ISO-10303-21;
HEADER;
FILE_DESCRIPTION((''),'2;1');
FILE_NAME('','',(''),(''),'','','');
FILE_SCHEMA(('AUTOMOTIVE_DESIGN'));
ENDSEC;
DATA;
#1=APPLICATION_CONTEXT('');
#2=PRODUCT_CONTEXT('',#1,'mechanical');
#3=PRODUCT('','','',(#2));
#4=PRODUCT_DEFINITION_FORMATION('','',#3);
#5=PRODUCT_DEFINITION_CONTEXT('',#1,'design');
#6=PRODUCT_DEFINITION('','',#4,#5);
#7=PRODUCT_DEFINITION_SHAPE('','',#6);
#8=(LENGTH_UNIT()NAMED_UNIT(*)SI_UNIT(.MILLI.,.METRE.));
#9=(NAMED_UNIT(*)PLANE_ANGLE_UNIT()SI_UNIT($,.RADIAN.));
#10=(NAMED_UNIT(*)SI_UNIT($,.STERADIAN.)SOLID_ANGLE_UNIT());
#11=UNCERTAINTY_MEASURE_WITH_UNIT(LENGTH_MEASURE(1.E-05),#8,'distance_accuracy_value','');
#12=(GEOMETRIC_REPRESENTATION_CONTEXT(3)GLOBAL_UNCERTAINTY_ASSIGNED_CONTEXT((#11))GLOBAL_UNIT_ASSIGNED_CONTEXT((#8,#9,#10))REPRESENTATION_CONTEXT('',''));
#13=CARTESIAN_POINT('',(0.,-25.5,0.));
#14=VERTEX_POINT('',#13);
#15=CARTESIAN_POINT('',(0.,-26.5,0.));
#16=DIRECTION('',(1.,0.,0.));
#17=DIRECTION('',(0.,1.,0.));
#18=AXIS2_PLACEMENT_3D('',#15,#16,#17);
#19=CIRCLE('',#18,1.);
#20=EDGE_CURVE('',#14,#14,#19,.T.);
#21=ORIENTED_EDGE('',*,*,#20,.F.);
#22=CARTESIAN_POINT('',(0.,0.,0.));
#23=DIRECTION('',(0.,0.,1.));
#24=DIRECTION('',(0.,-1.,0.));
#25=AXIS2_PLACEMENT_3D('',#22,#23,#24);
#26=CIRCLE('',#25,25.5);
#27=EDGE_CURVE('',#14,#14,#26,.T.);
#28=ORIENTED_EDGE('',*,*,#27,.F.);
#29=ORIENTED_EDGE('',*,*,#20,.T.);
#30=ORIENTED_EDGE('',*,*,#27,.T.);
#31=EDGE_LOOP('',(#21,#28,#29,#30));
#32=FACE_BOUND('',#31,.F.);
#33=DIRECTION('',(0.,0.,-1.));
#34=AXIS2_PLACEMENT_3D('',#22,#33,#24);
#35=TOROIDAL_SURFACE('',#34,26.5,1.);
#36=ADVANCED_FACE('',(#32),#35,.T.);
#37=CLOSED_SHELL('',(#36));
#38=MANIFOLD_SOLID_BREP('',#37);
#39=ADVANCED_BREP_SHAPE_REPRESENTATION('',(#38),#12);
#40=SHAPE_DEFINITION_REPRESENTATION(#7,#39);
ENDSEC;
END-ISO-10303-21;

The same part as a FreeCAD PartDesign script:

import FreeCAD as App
import Part
import Sketcher

doc = App.newDocument("Part")
params = doc.addObject("Spreadsheet::Sheet", "Params")
for row, (alias, value) in enumerate([
    ("sketch1_diameter", "2 mm"),
    ("revolution_angle", "360 deg"),
], start=1):
    params.set(f"A{row}", alias)
    params.set(f"B{row}", "=" + value)
    params.setAlias(f"B{row}", alias)

body = doc.addObject("PartDesign::Body", "Body")

# Sketch on YZ plane
sketch1 = body.newObject("Sketcher::SketchObject", "Sketch")
sketch1.AttachmentSupport = (doc.getObject("YZ_Plane"), [""])
sketch1.MapMode = "FlatFace"
sketch1.addGeometry(Part.Circle(App.Vector(-26.5, 0, 0), App.Vector(0, 0, 1), 1), False)
sketch1.addConstraint([
    Sketcher.Constraint("PointOnObject", 0, 3, -1),
    Sketcher.Constraint("Diameter", 0, 2.0),
    Sketcher.Constraint("DistanceX", 0, 3, -1, 1, 26.5),
])
sketch1.setExpression("Constraints[1]", "Params.sketch1_diameter")
revolution = body.newObject("PartDesign::Revolution", "Revolution")
revolution.Profile = sketch1
revolution.ReferenceAxis = (sketch1, ["V_Axis"])
revolution.setExpression("Angle", "Params.revolution_angle")

doc.recompute()
